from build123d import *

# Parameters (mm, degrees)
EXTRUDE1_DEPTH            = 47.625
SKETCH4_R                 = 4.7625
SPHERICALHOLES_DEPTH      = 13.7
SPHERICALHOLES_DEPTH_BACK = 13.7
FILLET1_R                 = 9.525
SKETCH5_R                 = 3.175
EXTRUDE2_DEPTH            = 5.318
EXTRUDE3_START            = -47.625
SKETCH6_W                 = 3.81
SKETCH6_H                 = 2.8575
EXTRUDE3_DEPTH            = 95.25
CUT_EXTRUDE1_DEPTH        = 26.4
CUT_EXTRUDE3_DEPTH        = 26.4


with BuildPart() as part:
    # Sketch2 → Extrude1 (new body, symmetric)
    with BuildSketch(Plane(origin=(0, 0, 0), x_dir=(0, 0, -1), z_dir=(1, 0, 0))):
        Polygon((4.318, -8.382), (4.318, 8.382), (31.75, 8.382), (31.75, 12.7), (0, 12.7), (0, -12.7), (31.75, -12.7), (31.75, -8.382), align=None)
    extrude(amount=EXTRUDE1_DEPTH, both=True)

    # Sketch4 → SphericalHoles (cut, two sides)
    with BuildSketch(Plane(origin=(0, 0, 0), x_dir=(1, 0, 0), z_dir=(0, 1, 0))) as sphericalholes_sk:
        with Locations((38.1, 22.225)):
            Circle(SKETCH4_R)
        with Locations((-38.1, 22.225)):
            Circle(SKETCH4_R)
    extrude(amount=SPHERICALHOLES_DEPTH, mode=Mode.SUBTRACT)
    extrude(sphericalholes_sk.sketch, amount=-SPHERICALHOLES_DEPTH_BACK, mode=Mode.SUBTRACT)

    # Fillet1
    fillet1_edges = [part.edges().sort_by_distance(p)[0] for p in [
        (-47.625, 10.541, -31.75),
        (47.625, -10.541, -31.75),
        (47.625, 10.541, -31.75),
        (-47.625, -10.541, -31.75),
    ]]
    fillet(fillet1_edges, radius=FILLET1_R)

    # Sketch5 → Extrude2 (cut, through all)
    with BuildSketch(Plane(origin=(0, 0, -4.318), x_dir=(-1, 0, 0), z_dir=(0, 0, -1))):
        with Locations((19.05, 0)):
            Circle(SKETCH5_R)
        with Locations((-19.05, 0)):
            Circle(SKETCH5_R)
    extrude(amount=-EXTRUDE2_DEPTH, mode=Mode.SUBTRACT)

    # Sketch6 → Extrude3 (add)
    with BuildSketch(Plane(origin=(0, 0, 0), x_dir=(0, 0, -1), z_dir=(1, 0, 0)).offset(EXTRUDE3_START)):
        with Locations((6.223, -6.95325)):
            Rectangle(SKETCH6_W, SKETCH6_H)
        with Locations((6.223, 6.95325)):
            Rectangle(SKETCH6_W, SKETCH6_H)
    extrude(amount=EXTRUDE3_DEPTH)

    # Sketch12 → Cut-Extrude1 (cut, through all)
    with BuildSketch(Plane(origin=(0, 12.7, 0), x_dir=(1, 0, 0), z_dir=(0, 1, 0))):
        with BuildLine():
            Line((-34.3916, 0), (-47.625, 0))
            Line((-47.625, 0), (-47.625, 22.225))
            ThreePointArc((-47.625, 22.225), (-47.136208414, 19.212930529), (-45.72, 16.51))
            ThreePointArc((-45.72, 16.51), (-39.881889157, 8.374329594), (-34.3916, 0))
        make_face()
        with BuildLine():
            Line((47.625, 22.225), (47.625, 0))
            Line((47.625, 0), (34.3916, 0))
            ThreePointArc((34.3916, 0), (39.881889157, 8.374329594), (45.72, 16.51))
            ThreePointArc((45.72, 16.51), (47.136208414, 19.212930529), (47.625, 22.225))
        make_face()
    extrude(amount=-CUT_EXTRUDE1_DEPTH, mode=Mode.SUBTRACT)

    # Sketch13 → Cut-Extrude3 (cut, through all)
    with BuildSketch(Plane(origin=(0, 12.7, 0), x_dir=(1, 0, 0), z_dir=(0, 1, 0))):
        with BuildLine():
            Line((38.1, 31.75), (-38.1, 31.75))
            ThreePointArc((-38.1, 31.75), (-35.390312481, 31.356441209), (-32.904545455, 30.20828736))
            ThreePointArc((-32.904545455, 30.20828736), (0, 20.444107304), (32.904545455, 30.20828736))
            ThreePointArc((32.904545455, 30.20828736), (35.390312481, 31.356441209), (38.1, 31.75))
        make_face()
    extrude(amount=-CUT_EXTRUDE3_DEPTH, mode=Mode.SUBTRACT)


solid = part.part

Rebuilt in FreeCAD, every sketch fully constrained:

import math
import FreeCAD as App
import Part
import Sketcher
Q = App.Units.Quantity


def edges_at(feature, points):
    """Names of the edges that pass closest to the given points."""
    edges = feature.Shape.Edges
    near = lambda p: min(range(len(edges)), key=lambda i: edges[i].distToShape(Part.Vertex(*p))[0])
    return sorted({f"Edge{near(p) + 1}" for p in points})


def add_polygon(sketch, points):
    """Adds a closed chain of lines whose ends are joined by coincident constraints."""
    first, n = sketch.GeometryCount, len(points)
    for a, b in zip(points, points[1:] + points[:1]):
        sketch.addGeometry(Part.LineSegment(App.Vector(*a, 0), App.Vector(*b, 0)), False)
    for i in range(n):
        sketch.addConstraint(Sketcher.Constraint("Coincident", first + i, 2, first + (i + 1) % n, 1))

doc = App.newDocument("Part")
params = doc.addObject("Spreadsheet::Sheet", "Params")
for row, (alias, value) in enumerate([
    ("sketch1_width", "1 in"),
    ("sketch1_width2", "0.66 in"),
    ("sketch1_height", "1.08 in"),
    ("sketch1_height2", "1.25 in"),
    ("pad1_length", "3.75 in"),
    ("sketch2_diameter", "0.375 in"),
    ("fillet_radius", "0.375 in"),
    ("sketch3_diameter", "0.25 in"),
    ("sketch4_height", "0.15 in"),
    ("pad2_length", "3.75 in"),
    ("sketch5_radius", "0.375 in"),
    ("sketch5_width", "0.521 in"),
    ("sketch5_height", "0.875 in"),
    ("sketch6_width", "3 in"),
    ("sketch6_radius", "0.375 in"),
    ("sketch6_radius2", "2.375 in"),
], start=1):
    params.set(f"A{row}", alias)
    params.set(f"B{row}", "=" + value)
    params.setAlias(f"B{row}", alias)

body = doc.addObject("PartDesign::Body", "Body")

sketch1 = body.newObject("Sketcher::SketchObject", "Sketch")
sketch1.AttachmentSupport = (doc.getObject("YZ_Plane"), [""])
sketch1.MapMode = "FlatFace"
add_polygon(sketch1, [(-8.382, -4.318), (8.382, -4.318), (8.382, -31.75), (12.7, -31.75), (12.7, 0), (-12.7, 0), (-12.7, -31.75), (-8.382, -31.75)])
sketch1.addConstraint([
    Sketcher.Constraint("Horizontal", 0),
    Sketcher.Constraint("Vertical", 1),
    Sketcher.Constraint("Horizontal", 2),
    Sketcher.Constraint("Vertical", 3),
    Sketcher.Constraint("Horizontal", 4),
    Sketcher.Constraint("Vertical", 5),
    Sketcher.Constraint("Horizontal", 6),
    Sketcher.Constraint("Vertical", 7),
    Sketcher.Constraint("Symmetric", 3, 2, 4, 2, -1, 1),
    Sketcher.Constraint("Symmetric", 1, 2, 6, 2, -2),
    Sketcher.Constraint("DistanceX", 4, 2, 4, 1, Q("1 in")),
    Sketcher.Constraint("DistanceX", 0, 1, 0, 2, Q("0.66 in")),
    Sketcher.Constraint("DistanceY", 1, 2, 1, 1, Q("1.08 in")),
    Sketcher.Constraint("DistanceY", 3, 1, 3, 2, Q("1.25 in")),
])
sketch1.setExpression("Constraints[18]", "Params.sketch1_width")
sketch1.setExpression("Constraints[19]", "Params.sketch1_width2")
sketch1.setExpression("Constraints[20]", "Params.sketch1_height")
sketch1.setExpression("Constraints[21]", "Params.sketch1_height2")
pad1 = body.newObject("PartDesign::Pad", "Pad")
pad1.Profile = sketch1
pad1.setExpression("Length", "Params.pad1_length")
pad1.Midplane = True

sketch2 = body.newObject("Sketcher::SketchObject", "Sketch001")
sketch2.AttachmentSupport = (doc.getObject("XZ_Plane"), [""])
sketch2.MapMode = "FlatFace"
sketch2.addGeometry([
    Part.Circle(App.Vector(38.1, -22.225, 0), App.Vector(0, 0, 1), 4.7625),
    Part.Circle(App.Vector(-38.1, -22.225, 0), App.Vector(0, 0, 1), 4.7625),
], False)
sketch2.addConstraint([
    Sketcher.Constraint("Equal", 0, 1),
    Sketcher.Constraint("Symmetric", 0, 3, 1, 3, -2),
    Sketcher.Constraint("Diameter", 0, Q("0.375 in")),
    Sketcher.Constraint("DistanceX", 1, 3, 0, 3, Q("3 in")),
    Sketcher.Constraint("DistanceY", 0, 3, -1, 1, Q("0.875 in")),
])
sketch2.setExpression("Constraints[2]", "Params.sketch2_diameter")
pocket1 = body.newObject("PartDesign::Pocket", "Pocket")
pocket1.Profile = sketch2
pocket1.Type = "ThroughAll"
pocket1.Midplane = True
doc.recompute()

fillet = body.newObject("PartDesign::Fillet", "Fillet")
fillet.Base = (pocket1, edges_at(pocket1, [
    (-47.625, 10.541, -31.75),
    (47.625, -10.541, -31.75),
    (47.625, 10.541, -31.75),
    (-47.625, -10.541, -31.75),
]))
fillet.setExpression("Radius", "Params.fillet_radius")

sketch3 = body.newObject("Sketcher::SketchObject", "Sketch002")
sketch3.AttachmentSupport = (doc.getObject("XY_Plane"), [""])
sketch3.MapMode = "FlatFace"
sketch3.AttachmentOffset = App.Placement(App.Vector(0, 0, -0.17 * 25.4), App.Rotation())
sketch3.addGeometry([
    Part.Circle(App.Vector(-19.05, 0, 0), App.Vector(0, 0, 1), 3.175),
    Part.Circle(App.Vector(19.05, 0, 0), App.Vector(0, 0, 1), 3.175),
], False)
sketch3.addConstraint([
    Sketcher.Constraint("Equal", 0, 1),
    Sketcher.Constraint("Symmetric", 0, 3, 1, 3, -1, 1),
    Sketcher.Constraint("PointOnObject", 0, 3, -1),
    Sketcher.Constraint("Diameter", 0, Q("0.25 in")),
    Sketcher.Constraint("DistanceX", 0, 3, 1, 3, Q("1.5 in")),
])
sketch3.setExpression("Constraints[3]", "Params.sketch3_diameter")
pocket2 = body.newObject("PartDesign::Pocket", "Pocket001")
pocket2.Profile = sketch3
pocket2.Type = "ThroughAll"
pocket2.Reversed = True

sketch4 = body.newObject("Sketcher::SketchObject", "Sketch003")
sketch4.AttachmentSupport = (doc.getObject("YZ_Plane"), [""])
sketch4.MapMode = "FlatFace"
sketch4.AttachmentOffset = App.Placement(App.Vector(0, 0, -1.875 * 25.4), App.Rotation())
add_polygon(sketch4, [(-5.5245, -4.318), (-8.382, -4.318), (-8.382, -8.128), (-5.5245, -8.128)])
add_polygon(sketch4, [(8.382, -4.318), (5.5245, -4.318), (5.5245, -8.128), (8.382, -8.128)])
sketch4.addConstraint([
    Sketcher.Constraint("Horizontal", 0),
    Sketcher.Constraint("Vertical", 1),
    Sketcher.Constraint("Horizontal", 2),
    Sketcher.Constraint("Vertical", 3),
    Sketcher.Constraint("Horizontal", 4),
    Sketcher.Constraint("Vertical", 5),
    Sketcher.Constraint("Horizontal", 6),
    Sketcher.Constraint("Vertical", 7),
    Sketcher.Constraint("Symmetric", 3, 2, 4, 2, -2),
    Sketcher.Constraint("Symmetric", 1, 2, 6, 2, -2),
    Sketcher.Constraint("DistanceY", 1, 2, 1, 1, Q("0.15 in")),
    Sketcher.Constraint("DistanceX", 0, 2, -1, 1, Q("0.33 in")),
    Sketcher.Constraint("DistanceY", 0, 2, -1, 1, Q("0.17 in")),
    Sketcher.Constraint("DistanceX", 0, 2, 0, 1, Q("0.1125 in")),
])
sketch4.setExpression("Constraints[18]", "Params.sketch4_height")
pad2 = body.newObject("PartDesign::Pad", "Pad001")
pad2.Profile = sketch4
pad2.setExpression("Length", "Params.pad2_length")

sketch5 = body.newObject("Sketcher::SketchObject", "Sketch004")
sketch5.AttachmentSupport = (doc.getObject("XZ_Plane"), [""])
sketch5.MapMode = "FlatFace"
sketch5.AttachmentOffset = App.Placement(App.Vector(0, 0, -0.5 * 25.4), App.Rotation())
sketch5.addGeometry([
    Part.LineSegment(App.Vector(-47.625, 0, 0), App.Vector(-34.3916, 0, 0)),
    Part.ArcOfCircle(Part.Circle(App.Vector(-235.88827, 126.116203, 0), App.Vector(0, 0, 1), 237.710338), math.radians(-36.869898), math.radians(-32.042334)),
    Part.ArcOfCircle(Part.Circle(App.Vector(-38.1, -22.225, 0), App.Vector(0, 0, 1), 9.525), math.radians(143.130102), math.radians(180)),
    Part.LineSegment(App.Vector(-47.625, -22.225, 0), App.Vector(-47.625, 0, 0)),
    Part.LineSegment(App.Vector(47.625, 0, 0), App.Vector(47.625, -22.225, 0)),
    Part.ArcOfCircle(Part.Circle(App.Vector(38.1, -22.225, 0), App.Vector(0, 0, 1), 9.525), math.radians(0), math.radians(36.869898)),
    Part.ArcOfCircle(Part.Circle(App.Vector(235.88827, 126.116203, 0), App.Vector(0, 0, 1), 237.710338), math.radians(-147.957666), math.radians(-143.130102)),
    Part.LineSegment(App.Vector(34.3916, 0, 0), App.Vector(47.625, 0, 0)),
], False)
sketch5.addConstraint([
    Sketcher.Constraint("Coincident", 0, 2, 1, 2),
    Sketcher.Constraint("Tangent", 1, 1, 2, 1),
    Sketcher.Constraint("Tangent", 2, 2, 3, 1),
    Sketcher.Constraint("Coincident", 3, 2, 0, 1),
    Sketcher.Constraint("Tangent", 4, 2, 5, 1),
    Sketcher.Constraint("Tangent", 5, 2, 6, 2),
    Sketcher.Constraint("Coincident", 6, 1, 7, 1),
    Sketcher.Constraint("Coincident", 7, 2, 4, 1),
    Sketcher.Constraint("Horizontal", 0),
    Sketcher.Constraint("Vertical", 3),
    Sketcher.Constraint("Vertical", 4),
    Sketcher.Constraint("Horizontal", 7),
    Sketcher.Constraint("Equal", 2, 5),
    Sketcher.Constraint("Equal", 1, 6),
    Sketcher.Constraint("Symmetric", 0, 2, 6, 1, -1, 1),
    Sketcher.Constraint("Symmetric", 2, 3, 5, 3, -2),
    Sketcher.Constraint("PointOnObject", 0, 2, -1),
    Sketcher.Constraint("Radius", 2, Q("0.375 in")),
    Sketcher.Constraint("DistanceX", 2, 3, 5, 3, Q("3 in")),
    Sketcher.Constraint("DistanceX", -1, 1, 5, 2, Q("1.8 in")),
    Sketcher.Constraint("DistanceX", 0, 1, 0, 2, Q("0.521 in")),
    Sketcher.Constraint("DistanceY", 3, 1, 3, 2, Q("0.875 in")),
])
sketch5.setExpression("Constraints[17]", "Params.sketch5_radius")
sketch5.setExpression("Constraints[20]", "Params.sketch5_width")
sketch5.setExpression("Constraints[21]", "Params.sketch5_height")
pocket3 = body.newObject("PartDesign::Pocket", "Pocket002")
pocket3.Profile = sketch5
pocket3.Type = "ThroughAll"
pocket3.Reversed = True

sketch6 = body.newObject("Sketcher::SketchObject", "Sketch005")
sketch6.AttachmentSupport = (doc.getObject("XZ_Plane"), [""])
sketch6.MapMode = "FlatFace"
sketch6.AttachmentOffset = App.Placement(App.Vector(0, 0, -0.5 * 25.4), App.Rotation())
sketch6.addGeometry([
    Part.LineSegment(App.Vector(38.1, -31.75, 0), App.Vector(-38.1, -31.75, 0)),
    Part.ArcOfCircle(Part.Circle(App.Vector(-38.1, -22.225, 0), App.Vector(0, 0, 1), 9.525), math.radians(-90), math.radians(-56.944269)),
    Part.ArcOfCircle(Part.Circle(App.Vector(0, -80.769107, 0), App.Vector(0, 0, 1), 60.325), math.radians(56.944269), math.radians(123.055731)),
    Part.ArcOfCircle(Part.Circle(App.Vector(38.1, -22.225, 0), App.Vector(0, 0, 1), 9.525), math.radians(-123.055731), math.radians(-90)),
], False)
sketch6.addConstraint([
    Sketcher.Constraint("Tangent", 0, 2, 1, 1),
    Sketcher.Constraint("Tangent", 1, 2, 2, 2),
    Sketcher.Constraint("Tangent", 2, 1, 3, 1),
    Sketcher.Constraint("Tangent", 3, 2, 0, 1),
    Sketcher.Constraint("Horizontal", 0),
    Sketcher.Constraint("Equal", 1, 3),
    Sketcher.Constraint("PointOnObject", 2, 3, -2),
    Sketcher.Constraint("DistanceX", 0, 2, 0, 1, Q("3 in")),
    Sketcher.Constraint("Radius", 1, Q("0.375 in")),
    Sketcher.Constraint("Radius", 2, Q("2.375 in")),
    Sketcher.Constraint("DistanceY", 0, 2, -1, 1, Q("1.25 in")),
])
sketch6.setExpression("Constraints[7]", "Params.sketch6_width")
sketch6.setExpression("Constraints[8]", "Params.sketch6_radius")
sketch6.setExpression("Constraints[9]", "Params.sketch6_radius2")
pocket4 = body.newObject("PartDesign::Pocket", "Pocket003")
pocket4.Profile = sketch6
pocket4.Type = "ThroughAll"
pocket4.Reversed = True

doc.recompute()
